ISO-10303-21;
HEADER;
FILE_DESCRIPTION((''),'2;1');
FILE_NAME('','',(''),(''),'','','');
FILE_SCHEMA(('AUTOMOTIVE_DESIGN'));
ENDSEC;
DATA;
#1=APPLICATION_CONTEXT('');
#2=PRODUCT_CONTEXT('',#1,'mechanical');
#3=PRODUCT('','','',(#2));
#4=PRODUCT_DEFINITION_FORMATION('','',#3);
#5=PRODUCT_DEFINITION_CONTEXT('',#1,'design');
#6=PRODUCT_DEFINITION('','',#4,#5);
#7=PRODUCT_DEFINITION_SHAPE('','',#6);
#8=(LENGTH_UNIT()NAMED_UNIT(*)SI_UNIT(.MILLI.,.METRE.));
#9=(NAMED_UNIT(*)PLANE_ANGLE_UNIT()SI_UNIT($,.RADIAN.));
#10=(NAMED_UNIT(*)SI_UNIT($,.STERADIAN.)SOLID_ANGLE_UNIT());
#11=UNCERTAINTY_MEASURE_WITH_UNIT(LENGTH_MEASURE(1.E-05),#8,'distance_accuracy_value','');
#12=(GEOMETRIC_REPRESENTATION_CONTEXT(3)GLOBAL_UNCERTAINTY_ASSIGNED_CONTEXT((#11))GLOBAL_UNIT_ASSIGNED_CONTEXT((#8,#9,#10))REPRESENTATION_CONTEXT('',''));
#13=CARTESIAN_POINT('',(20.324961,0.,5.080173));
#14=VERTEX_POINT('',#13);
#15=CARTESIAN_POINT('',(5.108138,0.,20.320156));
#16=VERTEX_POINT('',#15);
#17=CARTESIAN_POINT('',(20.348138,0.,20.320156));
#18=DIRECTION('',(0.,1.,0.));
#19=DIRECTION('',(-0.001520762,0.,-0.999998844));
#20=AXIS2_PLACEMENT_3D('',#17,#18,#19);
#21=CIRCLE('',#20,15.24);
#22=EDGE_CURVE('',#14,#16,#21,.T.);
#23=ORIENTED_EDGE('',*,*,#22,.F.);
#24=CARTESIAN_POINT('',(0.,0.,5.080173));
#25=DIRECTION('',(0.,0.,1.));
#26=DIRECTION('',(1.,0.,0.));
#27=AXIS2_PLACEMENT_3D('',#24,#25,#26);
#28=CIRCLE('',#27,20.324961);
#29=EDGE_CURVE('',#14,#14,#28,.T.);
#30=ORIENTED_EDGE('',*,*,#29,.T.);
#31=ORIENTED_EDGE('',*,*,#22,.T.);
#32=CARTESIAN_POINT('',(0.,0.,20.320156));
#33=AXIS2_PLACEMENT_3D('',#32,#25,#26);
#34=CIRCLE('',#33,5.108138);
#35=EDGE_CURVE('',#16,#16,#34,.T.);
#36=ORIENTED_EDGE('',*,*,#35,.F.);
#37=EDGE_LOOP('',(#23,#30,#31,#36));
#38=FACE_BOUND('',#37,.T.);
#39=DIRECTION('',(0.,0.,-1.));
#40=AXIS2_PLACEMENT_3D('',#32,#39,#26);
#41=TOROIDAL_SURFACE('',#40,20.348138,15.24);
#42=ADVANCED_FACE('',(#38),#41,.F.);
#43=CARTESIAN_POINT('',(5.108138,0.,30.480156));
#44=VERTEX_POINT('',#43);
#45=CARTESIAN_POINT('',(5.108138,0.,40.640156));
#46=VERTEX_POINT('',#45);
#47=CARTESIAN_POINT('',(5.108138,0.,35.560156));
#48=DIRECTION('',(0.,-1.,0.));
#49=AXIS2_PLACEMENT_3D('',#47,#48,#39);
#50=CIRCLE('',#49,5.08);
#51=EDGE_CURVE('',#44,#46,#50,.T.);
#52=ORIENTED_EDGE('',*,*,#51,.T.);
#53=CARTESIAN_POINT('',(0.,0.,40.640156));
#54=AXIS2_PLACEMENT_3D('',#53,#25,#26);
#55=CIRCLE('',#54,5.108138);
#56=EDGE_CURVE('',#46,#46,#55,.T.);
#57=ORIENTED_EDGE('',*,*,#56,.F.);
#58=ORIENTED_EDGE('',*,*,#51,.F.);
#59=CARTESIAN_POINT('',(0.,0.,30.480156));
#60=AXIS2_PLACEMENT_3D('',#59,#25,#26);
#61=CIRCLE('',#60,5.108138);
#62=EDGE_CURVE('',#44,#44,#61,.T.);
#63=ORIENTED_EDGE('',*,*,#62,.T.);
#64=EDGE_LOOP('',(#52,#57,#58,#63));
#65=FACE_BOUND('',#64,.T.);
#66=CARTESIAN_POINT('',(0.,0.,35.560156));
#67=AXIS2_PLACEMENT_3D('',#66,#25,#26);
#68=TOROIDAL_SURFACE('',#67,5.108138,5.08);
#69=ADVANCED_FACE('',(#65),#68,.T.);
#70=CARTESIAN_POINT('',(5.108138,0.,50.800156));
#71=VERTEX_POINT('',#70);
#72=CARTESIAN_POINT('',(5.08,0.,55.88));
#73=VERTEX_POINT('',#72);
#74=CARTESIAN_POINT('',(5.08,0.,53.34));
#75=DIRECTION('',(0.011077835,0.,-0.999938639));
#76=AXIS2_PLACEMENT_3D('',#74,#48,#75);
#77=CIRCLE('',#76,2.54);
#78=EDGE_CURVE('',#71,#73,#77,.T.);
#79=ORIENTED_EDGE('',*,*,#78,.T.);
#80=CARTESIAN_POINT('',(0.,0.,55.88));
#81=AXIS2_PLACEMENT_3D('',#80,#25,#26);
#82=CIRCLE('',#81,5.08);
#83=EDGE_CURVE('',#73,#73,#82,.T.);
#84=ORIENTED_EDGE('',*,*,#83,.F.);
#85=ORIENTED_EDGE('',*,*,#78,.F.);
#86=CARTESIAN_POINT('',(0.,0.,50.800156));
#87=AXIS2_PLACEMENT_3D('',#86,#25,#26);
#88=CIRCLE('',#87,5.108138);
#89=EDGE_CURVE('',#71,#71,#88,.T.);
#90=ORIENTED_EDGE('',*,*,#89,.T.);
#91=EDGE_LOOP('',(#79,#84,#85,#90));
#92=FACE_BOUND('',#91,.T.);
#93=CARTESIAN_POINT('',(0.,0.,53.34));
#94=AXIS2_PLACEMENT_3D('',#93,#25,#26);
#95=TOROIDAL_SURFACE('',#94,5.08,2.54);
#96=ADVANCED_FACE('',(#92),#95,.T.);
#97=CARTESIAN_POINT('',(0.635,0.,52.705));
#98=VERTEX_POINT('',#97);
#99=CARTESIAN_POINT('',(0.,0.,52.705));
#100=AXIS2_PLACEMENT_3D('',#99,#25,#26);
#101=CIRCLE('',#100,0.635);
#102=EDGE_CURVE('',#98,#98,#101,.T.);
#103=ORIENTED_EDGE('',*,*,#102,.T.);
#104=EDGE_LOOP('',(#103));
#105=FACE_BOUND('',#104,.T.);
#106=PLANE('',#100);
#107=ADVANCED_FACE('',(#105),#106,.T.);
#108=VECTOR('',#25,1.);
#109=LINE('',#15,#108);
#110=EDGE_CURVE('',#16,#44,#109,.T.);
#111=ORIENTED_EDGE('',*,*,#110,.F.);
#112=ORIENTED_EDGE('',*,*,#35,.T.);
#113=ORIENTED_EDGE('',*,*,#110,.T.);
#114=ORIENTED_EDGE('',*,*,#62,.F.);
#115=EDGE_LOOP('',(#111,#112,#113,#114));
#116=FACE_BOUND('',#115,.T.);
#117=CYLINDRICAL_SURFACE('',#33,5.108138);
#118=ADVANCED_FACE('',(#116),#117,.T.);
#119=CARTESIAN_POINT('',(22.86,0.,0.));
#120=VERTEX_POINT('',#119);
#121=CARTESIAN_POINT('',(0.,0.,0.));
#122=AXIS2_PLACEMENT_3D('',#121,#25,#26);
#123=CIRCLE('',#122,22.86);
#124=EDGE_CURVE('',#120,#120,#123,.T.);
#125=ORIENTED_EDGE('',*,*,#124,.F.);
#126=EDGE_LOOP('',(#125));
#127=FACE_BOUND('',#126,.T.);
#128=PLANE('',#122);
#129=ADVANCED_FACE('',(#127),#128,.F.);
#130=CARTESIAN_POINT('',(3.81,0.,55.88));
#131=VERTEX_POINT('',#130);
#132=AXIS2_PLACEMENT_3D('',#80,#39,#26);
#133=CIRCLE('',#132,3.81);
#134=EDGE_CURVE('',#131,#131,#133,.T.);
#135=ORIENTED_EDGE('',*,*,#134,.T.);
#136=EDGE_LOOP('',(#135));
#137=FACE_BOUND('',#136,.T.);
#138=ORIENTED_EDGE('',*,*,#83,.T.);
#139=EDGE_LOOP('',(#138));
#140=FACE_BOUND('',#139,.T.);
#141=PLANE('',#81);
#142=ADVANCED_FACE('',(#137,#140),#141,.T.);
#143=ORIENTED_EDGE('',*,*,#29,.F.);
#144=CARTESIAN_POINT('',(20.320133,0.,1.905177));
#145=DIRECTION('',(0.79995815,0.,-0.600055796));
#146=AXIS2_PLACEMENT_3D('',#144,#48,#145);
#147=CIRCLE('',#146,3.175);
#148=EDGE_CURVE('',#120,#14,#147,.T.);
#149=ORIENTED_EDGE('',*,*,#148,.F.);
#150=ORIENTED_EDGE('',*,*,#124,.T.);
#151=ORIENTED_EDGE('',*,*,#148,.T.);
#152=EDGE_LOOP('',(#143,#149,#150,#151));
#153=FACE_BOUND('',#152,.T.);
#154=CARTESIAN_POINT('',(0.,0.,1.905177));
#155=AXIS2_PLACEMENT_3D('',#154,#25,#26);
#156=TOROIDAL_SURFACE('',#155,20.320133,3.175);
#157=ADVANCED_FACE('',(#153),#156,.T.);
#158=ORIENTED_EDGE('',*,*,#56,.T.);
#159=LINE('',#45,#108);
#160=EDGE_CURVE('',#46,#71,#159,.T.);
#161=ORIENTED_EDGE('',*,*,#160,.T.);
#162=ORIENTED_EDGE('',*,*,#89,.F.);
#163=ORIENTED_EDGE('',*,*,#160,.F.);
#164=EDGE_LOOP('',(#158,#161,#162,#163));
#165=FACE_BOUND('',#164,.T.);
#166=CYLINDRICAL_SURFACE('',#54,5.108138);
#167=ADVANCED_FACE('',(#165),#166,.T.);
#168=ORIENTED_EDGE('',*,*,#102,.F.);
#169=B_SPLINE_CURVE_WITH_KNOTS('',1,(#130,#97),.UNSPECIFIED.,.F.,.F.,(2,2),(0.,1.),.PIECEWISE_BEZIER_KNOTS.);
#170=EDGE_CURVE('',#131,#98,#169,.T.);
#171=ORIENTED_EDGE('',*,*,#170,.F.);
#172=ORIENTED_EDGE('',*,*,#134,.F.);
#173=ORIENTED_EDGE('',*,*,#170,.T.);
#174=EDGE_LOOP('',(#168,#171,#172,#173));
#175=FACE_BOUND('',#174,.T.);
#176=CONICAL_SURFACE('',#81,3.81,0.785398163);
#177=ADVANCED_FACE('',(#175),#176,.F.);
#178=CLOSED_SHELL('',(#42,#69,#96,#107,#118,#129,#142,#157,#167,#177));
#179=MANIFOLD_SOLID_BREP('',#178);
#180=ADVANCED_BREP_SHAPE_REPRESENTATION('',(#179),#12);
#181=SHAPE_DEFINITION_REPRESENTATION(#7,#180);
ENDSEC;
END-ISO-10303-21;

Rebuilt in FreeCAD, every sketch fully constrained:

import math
import FreeCAD as App
import Part
import Sketcher

V = App.Vector
Q = App.Units.Quantity

doc = App.newDocument("Part")
body = doc.addObject("PartDesign::Body", "Body")

# Sketch on XZ plane
sketch1 = body.newObject("Sketcher::SketchObject", "Sketch")
sketch1.AttachmentSupport = (doc.getObject("XZ_Plane"), [""])
sketch1.MapMode = "FlatFace"
sketch1.addGeometry([
    Part.LineSegment(V(0, 0, 0), V(22.9, 0, 0)),  # 0
    Part.ArcOfCircle(Part.Circle(V(20.3, 1.9, 0), V(0, 0, 1), 3.2), math.radians(-37), math.radians(90)),  # 1
    Part.ArcOfCircle(Part.Circle(V(20.3, 20.3, 0), V(0, 0, 1), 15.2), math.radians(180), math.radians(270)),  # 2
    Part.LineSegment(V(5.1, 20.3, 0), V(5.1, 30.5, 0)),  # 3
    Part.ArcOfCircle(Part.Circle(V(5.1, 35.6, 0), V(0, 0, 1), 5.1), math.radians(-90), math.radians(90)),  # 4
    Part.LineSegment(V(5.1, 40.6, 0), V(5.1, 50.8, 0)),  # 5
    Part.ArcOfCircle(Part.Circle(V(5.1, 53.3, 0), V(0, 0, 1), 2.5), math.radians(-89), math.radians(90)),  # 6
    Part.LineSegment(V(5.1, 55.9, 0), V(0, 55.9, 0)),  # 7
    Part.LineSegment(V(0, 55.9, 0), V(0, 0, 0)),  # 8
], False)
sketch1.addConstraint([
    Sketcher.Constraint("Coincident", 0, 2, 1, 1),
    Sketcher.Constraint("Tangent", 1, 2, 2, 2),
    Sketcher.Constraint("Tangent", 2, 1, 3, 1),
    Sketcher.Constraint("Coincident", 3, 2, 4, 1),
    Sketcher.Constraint("Coincident", 4, 2, 5, 1),
    Sketcher.Constraint("Coincident", 5, 2, 6, 1),
    Sketcher.Constraint("Tangent", 6, 2, 7, 1),
    Sketcher.Constraint("Coincident", 7, 2, 8, 1),
    Sketcher.Constraint("Coincident", 8, 2, 0, 1),
    Sketcher.Constraint("Horizontal", 0),
    Sketcher.Constraint("Vertical", 3),
    Sketcher.Constraint("Vertical", 5),
    Sketcher.Constraint("Horizontal", 7),
    Sketcher.Constraint("Vertical", 8),
    Sketcher.Constraint("Coincident", 8, 2, -1, 1),
    Sketcher.Constraint("Vertical", 4, 3, 2, 1),
    Sketcher.Constraint("Vertical", 3, 2, 4, 2),
    Sketcher.Constraint("Equal", 3, 5),
    Sketcher.Constraint("Radius", 2, Q("0.6 in")),
    Sketcher.Constraint("Radius", 4, Q("0.2 in")),
    Sketcher.Constraint("Radius", 6, Q("0.1 in")),
    Sketcher.Constraint("DistanceX", 0, 1, 0, 2, Q("0.9 in")),
    Sketcher.Constraint("DistanceX", 7, 2, 7, 1, Q("0.2 in")),
    Sketcher.Constraint("DistanceY", 3, 1, 3, 2, Q("0.4 in")),
    Sketcher.Constraint("DistanceY", 8, 2, 8, 1, Q("2.2 in")),
    Sketcher.Constraint("Radius", 1, Q("0.125 in")),
    Sketcher.Constraint("DistanceX", -1, 1, 1, 2, Q("20.324961 mm")),
])
revolution = body.newObject("PartDesign::Revolution", "Revolution")
revolution.Profile = sketch1
revolution.ReferenceAxis = (sketch1, ["V_Axis"])
revolution.Angle = 360

# Sketch on XY plane
sketch2 = body.newObject("Sketcher::SketchObject", "Sketch001")
sketch2.AttachmentSupport = (doc.getObject("XY_Plane"), [""])
sketch2.MapMode = "FlatFace"
sketch2.AttachmentOffset = App.Placement(V(0, 0, 2.2 * 25.4), App.Rotation())
sketch2.addGeometry(Part.Circle(V(0, 0, 0), V(0, 0, 1), 3.8), False)
sketch2.addConstraint([
    Sketcher.Constraint("Coincident", 0, 3, -1, 1),
    Sketcher.Constraint("Diameter", 0, Q("0.3 in")),
])
pocket1 = body.newObject("PartDesign::Pocket", "Pocket")
pocket1.Profile = sketch2
pocket1.Length = Q("0.25 in")
pocket1.Midplane = True
pocket1.TaperAngle = -45

doc.recompute()
